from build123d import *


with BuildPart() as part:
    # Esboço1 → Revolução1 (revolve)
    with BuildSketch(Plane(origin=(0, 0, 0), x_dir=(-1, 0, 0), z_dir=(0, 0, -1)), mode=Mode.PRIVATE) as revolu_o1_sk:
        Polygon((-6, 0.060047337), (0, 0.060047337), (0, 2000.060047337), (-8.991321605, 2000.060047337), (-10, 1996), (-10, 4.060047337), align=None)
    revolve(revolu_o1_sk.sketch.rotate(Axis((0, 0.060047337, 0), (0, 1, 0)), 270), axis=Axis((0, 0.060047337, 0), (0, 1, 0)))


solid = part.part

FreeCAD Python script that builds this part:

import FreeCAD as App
import Part
import Sketcher
Q = App.Units.Quantity

doc = App.newDocument("Part")
body = doc.addObject("PartDesign::Body", "Body")

# Sketch on XY plane
sketch1 = doc.addObject("Sketcher::SketchObject", "Sketch")
body.addObject(sketch1)
sketch1.AttachmentSupport = (doc.XY_Plane, [""])
sketch1.MapMode = "FlatFace"
sketch1.addGeometry([
    Part.LineSegment(App.Vector(6, 0.1, 0), App.Vector(0, 0.1, 0)),  # 0
    Part.LineSegment(App.Vector(0, 0.1, 0), App.Vector(0, 2000.1, 0)),  # 1
    Part.LineSegment(App.Vector(0, 2000.1, 0), App.Vector(9, 2000.1, 0)),  # 2
    Part.LineSegment(App.Vector(9, 2000.1, 0), App.Vector(10, 1996, 0)),  # 3
    Part.LineSegment(App.Vector(10, 1996, 0), App.Vector(10, 4.1, 0)),  # 4
    Part.LineSegment(App.Vector(10, 4.1, 0), App.Vector(6, 0.1, 0)),  # 5
], False)
sketch1.addConstraint([
    Sketcher.Constraint("Coincident", 0, 2, 1, 1),
    Sketcher.Constraint("Coincident", 1, 2, 2, 1),
    Sketcher.Constraint("Coincident", 2, 2, 3, 1),
    Sketcher.Constraint("Coincident", 3, 2, 4, 1),
    Sketcher.Constraint("Coincident", 4, 2, 5, 1),
    Sketcher.Constraint("Coincident", 5, 2, 0, 1),
    Sketcher.Constraint("Horizontal", 0),
    Sketcher.Constraint("Vertical", 1),
    Sketcher.Constraint("Horizontal", 2),
    Sketcher.Constraint("Vertical", 4),
    Sketcher.Constraint("PointOnObject", 0, 2, -2),
    Sketcher.Constraint("DistanceX", 0, 2, 0, 1, 6.0),
    Sketcher.Constraint("DistanceY", 1, 1, 1, 2, 2000.0),
    Sketcher.Constraint("Angle", 5, Q("-135 deg")),
    Sketcher.Constraint("DistanceX", -1, 1, 3, 2, 10.0),
    Sketcher.Constraint("DistanceY", -1, 1, 3, 2, 1996.0),
    Sketcher.Constraint("DistanceX", 2, 1, 2, 2, 8.991322),
    Sketcher.Constraint("Distance", 3, 4.183469),
])
revolution = doc.addObject("PartDesign::Revolution", "Revolution")
body.addObject(revolution)
revolution.Profile = sketch1
revolution.ReferenceAxis = (sketch1, ["V_Axis"])
revolution.Angle = 360

doc.recompute()
